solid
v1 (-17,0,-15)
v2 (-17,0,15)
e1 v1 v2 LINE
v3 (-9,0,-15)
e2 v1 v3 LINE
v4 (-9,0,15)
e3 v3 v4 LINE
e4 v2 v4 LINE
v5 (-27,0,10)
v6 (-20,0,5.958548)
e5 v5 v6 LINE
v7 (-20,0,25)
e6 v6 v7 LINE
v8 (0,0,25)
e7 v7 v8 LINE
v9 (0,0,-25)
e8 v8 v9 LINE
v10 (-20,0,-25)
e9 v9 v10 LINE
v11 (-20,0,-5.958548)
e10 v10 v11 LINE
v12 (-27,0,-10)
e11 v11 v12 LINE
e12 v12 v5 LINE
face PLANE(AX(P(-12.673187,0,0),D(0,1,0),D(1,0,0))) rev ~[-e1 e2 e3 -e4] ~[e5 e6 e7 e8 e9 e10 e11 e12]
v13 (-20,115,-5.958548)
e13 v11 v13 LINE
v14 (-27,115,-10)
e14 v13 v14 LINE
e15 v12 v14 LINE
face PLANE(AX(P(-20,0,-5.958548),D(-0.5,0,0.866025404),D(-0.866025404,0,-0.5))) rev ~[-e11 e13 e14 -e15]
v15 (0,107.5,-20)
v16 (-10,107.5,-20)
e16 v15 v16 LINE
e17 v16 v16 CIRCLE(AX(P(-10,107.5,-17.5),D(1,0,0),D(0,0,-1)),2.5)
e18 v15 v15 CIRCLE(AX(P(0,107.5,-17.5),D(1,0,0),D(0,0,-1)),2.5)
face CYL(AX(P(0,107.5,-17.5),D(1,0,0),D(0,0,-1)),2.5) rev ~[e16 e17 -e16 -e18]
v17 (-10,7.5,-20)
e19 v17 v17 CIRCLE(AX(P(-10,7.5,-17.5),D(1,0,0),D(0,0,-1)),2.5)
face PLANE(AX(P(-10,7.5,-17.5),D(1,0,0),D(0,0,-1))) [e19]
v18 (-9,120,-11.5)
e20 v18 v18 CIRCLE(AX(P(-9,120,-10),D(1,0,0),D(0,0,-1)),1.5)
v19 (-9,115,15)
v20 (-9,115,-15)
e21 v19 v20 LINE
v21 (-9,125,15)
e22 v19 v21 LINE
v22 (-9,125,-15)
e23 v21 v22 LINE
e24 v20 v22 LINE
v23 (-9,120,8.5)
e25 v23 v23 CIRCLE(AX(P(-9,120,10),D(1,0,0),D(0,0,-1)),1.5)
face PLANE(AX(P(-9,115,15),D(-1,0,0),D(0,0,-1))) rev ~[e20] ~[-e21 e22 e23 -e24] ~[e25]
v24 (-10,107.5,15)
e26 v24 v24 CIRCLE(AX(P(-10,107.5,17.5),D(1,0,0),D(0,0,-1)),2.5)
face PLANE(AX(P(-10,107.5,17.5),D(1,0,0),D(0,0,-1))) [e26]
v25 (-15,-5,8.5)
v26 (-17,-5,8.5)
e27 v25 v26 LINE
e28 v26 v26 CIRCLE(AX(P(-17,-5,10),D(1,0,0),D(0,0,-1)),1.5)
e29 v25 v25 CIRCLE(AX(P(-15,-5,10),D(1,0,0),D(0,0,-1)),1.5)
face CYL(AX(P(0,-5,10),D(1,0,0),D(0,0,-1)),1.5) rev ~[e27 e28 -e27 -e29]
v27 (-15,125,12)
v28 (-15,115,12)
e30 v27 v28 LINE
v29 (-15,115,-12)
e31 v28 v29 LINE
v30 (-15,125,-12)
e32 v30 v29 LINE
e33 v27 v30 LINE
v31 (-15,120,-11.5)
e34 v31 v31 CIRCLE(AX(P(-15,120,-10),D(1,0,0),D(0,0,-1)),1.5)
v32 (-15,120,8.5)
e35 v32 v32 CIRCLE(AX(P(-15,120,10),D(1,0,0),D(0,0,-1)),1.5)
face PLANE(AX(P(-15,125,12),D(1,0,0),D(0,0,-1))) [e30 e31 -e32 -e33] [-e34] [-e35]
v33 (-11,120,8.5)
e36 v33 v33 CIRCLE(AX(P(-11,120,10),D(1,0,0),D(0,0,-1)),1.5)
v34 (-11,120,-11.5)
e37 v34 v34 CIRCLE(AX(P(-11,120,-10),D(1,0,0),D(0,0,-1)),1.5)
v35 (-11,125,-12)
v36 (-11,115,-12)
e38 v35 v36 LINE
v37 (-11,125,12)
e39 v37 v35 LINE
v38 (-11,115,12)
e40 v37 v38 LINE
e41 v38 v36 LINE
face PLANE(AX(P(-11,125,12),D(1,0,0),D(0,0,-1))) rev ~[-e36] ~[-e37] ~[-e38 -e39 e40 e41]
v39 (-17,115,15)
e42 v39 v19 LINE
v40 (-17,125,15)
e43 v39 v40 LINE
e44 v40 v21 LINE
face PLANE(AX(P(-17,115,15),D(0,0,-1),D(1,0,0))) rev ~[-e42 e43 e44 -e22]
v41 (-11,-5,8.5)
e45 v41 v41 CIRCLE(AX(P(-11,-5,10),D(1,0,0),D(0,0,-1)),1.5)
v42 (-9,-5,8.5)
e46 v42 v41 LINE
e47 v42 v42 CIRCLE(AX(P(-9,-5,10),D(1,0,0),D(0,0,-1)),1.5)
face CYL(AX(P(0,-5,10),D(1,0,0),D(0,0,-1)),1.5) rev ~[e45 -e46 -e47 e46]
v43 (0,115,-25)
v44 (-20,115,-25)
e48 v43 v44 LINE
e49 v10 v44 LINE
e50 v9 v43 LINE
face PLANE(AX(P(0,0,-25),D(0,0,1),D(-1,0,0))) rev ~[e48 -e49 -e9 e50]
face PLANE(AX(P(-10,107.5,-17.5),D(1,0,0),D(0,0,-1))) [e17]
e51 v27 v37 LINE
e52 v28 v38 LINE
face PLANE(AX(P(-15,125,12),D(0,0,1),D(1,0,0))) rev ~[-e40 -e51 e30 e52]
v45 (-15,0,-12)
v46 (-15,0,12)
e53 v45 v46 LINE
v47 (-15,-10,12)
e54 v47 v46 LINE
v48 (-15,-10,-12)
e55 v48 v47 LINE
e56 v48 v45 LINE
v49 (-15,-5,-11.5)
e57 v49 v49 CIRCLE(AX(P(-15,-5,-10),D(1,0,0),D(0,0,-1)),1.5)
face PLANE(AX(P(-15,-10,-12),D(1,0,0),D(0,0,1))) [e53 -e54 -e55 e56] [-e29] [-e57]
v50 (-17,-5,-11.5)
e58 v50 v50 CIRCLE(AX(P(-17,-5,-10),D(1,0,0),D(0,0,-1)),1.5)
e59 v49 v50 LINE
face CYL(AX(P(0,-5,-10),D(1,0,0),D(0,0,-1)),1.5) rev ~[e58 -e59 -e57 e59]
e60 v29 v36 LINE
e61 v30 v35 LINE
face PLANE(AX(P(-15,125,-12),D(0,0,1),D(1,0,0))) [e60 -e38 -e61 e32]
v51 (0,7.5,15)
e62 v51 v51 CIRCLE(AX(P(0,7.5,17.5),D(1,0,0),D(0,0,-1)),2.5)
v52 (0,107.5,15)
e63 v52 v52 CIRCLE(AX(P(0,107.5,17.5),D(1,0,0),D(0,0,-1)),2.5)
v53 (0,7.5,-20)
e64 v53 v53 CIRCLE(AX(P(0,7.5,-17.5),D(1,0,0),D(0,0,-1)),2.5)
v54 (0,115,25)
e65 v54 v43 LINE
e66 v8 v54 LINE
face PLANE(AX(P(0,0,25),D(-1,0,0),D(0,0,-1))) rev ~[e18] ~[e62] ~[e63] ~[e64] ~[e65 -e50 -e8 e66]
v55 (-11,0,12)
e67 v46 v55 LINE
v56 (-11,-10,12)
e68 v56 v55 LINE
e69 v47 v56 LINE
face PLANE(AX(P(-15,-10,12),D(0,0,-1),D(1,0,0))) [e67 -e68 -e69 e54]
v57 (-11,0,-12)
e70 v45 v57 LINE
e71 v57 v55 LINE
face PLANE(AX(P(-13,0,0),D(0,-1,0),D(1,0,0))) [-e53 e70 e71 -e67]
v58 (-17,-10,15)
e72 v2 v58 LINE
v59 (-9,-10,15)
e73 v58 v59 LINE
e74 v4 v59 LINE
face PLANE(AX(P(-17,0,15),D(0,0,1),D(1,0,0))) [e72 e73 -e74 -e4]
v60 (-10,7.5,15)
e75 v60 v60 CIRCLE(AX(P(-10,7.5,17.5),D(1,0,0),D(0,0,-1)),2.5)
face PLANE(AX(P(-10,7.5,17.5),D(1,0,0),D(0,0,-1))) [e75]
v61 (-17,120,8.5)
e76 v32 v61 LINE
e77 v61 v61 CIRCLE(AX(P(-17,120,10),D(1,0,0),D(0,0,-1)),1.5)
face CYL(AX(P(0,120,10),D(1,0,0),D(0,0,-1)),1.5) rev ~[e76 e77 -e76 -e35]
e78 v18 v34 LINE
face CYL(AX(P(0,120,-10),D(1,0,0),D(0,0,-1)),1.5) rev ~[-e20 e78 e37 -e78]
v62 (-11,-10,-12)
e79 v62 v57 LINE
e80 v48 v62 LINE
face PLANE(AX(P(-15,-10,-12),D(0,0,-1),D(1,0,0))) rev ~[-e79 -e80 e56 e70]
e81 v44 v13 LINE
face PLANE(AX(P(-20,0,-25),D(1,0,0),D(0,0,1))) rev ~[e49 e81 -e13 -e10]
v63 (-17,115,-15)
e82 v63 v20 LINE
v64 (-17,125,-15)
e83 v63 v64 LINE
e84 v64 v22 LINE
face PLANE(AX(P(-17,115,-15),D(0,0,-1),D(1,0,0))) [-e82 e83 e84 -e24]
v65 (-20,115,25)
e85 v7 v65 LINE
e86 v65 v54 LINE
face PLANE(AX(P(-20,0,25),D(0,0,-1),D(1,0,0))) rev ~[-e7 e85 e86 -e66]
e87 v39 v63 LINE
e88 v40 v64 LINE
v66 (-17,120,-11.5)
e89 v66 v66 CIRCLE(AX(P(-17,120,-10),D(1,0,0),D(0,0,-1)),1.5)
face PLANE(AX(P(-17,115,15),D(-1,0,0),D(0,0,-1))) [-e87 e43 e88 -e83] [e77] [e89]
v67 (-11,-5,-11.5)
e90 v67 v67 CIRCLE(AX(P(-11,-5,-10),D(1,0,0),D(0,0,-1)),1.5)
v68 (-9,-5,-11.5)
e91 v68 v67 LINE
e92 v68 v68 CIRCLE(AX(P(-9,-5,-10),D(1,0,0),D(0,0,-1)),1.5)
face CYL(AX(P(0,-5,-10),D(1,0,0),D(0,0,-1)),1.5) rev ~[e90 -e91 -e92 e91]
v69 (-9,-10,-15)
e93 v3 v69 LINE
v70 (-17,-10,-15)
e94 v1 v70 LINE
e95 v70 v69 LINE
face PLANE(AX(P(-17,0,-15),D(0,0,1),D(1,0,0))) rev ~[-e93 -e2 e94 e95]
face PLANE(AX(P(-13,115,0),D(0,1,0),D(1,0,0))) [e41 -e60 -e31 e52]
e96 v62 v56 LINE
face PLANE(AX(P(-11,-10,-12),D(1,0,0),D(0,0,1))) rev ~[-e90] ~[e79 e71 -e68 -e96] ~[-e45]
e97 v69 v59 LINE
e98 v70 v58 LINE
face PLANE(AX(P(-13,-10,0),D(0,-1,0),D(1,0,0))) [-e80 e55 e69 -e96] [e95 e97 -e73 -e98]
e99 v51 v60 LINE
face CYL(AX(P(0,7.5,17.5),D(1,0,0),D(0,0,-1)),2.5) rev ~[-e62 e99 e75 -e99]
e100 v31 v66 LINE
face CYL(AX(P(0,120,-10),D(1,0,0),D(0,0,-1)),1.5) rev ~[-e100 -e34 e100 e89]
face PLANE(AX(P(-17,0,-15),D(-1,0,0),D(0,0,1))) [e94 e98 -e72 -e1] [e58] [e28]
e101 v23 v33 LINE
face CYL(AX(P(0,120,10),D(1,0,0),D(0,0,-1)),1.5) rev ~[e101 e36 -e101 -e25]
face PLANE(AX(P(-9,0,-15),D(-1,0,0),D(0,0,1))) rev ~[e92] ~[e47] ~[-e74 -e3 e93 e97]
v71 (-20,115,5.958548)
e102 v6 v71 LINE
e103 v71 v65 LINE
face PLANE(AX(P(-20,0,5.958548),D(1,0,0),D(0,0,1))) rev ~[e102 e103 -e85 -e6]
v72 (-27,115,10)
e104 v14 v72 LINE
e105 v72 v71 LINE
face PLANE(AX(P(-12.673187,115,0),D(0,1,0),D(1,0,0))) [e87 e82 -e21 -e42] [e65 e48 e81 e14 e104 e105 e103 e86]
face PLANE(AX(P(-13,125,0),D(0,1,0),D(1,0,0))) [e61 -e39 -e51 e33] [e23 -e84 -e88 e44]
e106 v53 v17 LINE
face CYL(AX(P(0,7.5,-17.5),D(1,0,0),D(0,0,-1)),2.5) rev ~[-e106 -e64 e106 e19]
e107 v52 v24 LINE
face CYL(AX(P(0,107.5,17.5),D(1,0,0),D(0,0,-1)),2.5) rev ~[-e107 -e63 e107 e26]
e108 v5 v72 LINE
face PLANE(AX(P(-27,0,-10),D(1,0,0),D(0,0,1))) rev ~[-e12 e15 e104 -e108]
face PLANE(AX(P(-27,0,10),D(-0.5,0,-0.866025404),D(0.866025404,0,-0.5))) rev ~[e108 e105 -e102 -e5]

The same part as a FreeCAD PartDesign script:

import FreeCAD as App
import Part
import Sketcher
Q = App.Units.Quantity


def add_polygon(sketch, points):
    """Adds a closed chain of lines whose ends are joined by coincident constraints."""
    first, n = sketch.GeometryCount, len(points)
    for a, b in zip(points, points[1:] + points[:1]):
        sketch.addGeometry(Part.LineSegment(App.Vector(*a, 0), App.Vector(*b, 0)), False)
    for i in range(n):
        sketch.addConstraint(Sketcher.Constraint("Coincident", first + i, 2, first + (i + 1) % n, 1))

doc = App.newDocument("Part")
body = doc.addObject("PartDesign::Body", "Body")

sketch1 = body.newObject("Sketcher::SketchObject", "Sketch")
sketch1.AttachmentSupport = (doc.getObject("XZ_Plane"), [""])
sketch1.MapMode = "FlatFace"
add_polygon(sketch1, [(-27, -10), (-27, 10), (-20, 5.958548), (-20, 25), (0, 25), (0, -25), (-20, -25), (-20, -5.958548)])
sketch1.addConstraint([
    Sketcher.Constraint("Vertical", 0),
    Sketcher.Constraint("Vertical", 2),
    Sketcher.Constraint("Horizontal", 3),
    Sketcher.Constraint("Vertical", 4),
    Sketcher.Constraint("Horizontal", 5),
    Sketcher.Constraint("Vertical", 6),
    Sketcher.Constraint("Symmetric", 3, 2, 4, 2, -1, 1),
    Sketcher.Constraint("Symmetric", 1, 2, 6, 2, -1),
    Sketcher.Constraint("Equal", 5, 0),
    Sketcher.Constraint("Equal", 1, 7),
    Sketcher.Constraint("DistanceX", 3, 1, 3, 2, Q("20 mm")),
    Sketcher.Constraint("DistanceY", 4, 2, 4, 1, Q("50 mm")),
    Sketcher.Constraint("Angle", 1, Q("-30 deg")),
    Sketcher.Constraint("DistanceX", 0, 2, -1, 1, Q("27 mm")),
])
pad1 = body.newObject("PartDesign::Pad", "Pad")
pad1.Profile = sketch1
pad1.Length = 115
pad1.Reversed = True

sketch2 = body.newObject("Sketcher::SketchObject", "Sketch001")
sketch2.AttachmentSupport = (doc.getObject("YZ_Plane"), [""])
sketch2.MapMode = "FlatFace"
sketch2.addGeometry([
    Part.Circle(App.Vector(107.5, 17.5, 0), App.Vector(0, 0, 1), 2.5),
    Part.Circle(App.Vector(7.5, 17.5, 0), App.Vector(0, 0, 1), 2.5),
    Part.Circle(App.Vector(7.5, -17.5, 0), App.Vector(0, 0, 1), 2.5),
    Part.Circle(App.Vector(107.5, -17.5, 0), App.Vector(0, 0, 1), 2.5),
], False)
sketch2.addConstraint([
    Sketcher.Constraint("Equal", 0, 1),
    Sketcher.Constraint("Equal", 1, 2),
    Sketcher.Constraint("Equal", 2, 3),
    Sketcher.Constraint("Symmetric", 1, 3, 2, 3, -1),
    Sketcher.Constraint("Symmetric", 0, 3, 3, 3, -1),
    Sketcher.Constraint("Horizontal", 0, 3, 1, 3),
    Sketcher.Constraint("Diameter", 0, Q("5 mm")),
    Sketcher.Constraint("DistanceX", 1, 3, 0, 3, Q("100 mm")),
    Sketcher.Constraint("DistanceY", 2, 3, 1, 3, Q("35 mm")),
    Sketcher.Constraint("DistanceX", -1, 1, 0, 3, Q("107.5 mm")),
])
pocket1 = body.newObject("PartDesign::Pocket", "Pocket")
pocket1.Profile = sketch2
pocket1.Length = 10

sketch3 = body.newObject("Sketcher::SketchObject", "Sketch002")
sketch3.AttachmentSupport = (doc.getObject("XZ_Plane"), [""])
sketch3.MapMode = "FlatFace"
sketch3.AttachmentOffset = App.Placement(App.Vector(0, 0, -115), App.Rotation())
add_polygon(sketch3, [(-17, -15), (-17, 15), (-9, 15), (-9, -15)])
sketch3.addConstraint([
    Sketcher.Constraint("Vertical", 0),
    Sketcher.Constraint("Horizontal", 1),
    Sketcher.Constraint("Vertical", 2),
    Sketcher.Constraint("Horizontal", 3),
    Sketcher.Constraint("DistanceX", 1, 1, 1, 2, Q("8 mm")),
    Sketcher.Constraint("DistanceY", 0, 1, 0, 2, Q("30 mm")),
    Sketcher.Constraint("DistanceX", 0, 2, -1, 1, Q("17 mm")),
    Sketcher.Constraint("DistanceY", -1, 1, 0, 2, Q("15 mm")),
])
pad2 = body.newObject("PartDesign::Pad", "Pad001")
pad2.Profile = sketch3
pad2.Length = 10
pad2.Reversed = True

sketch4 = body.newObject("Sketcher::SketchObject", "Sketch003")
sketch4.AttachmentSupport = (doc.getObject("XZ_Plane"), [""])
sketch4.MapMode = "FlatFace"
add_polygon(sketch4, [(-17, 15), (-17, -15), (-9, -15), (-9, 15)])
sketch4.addConstraint([
    Sketcher.Constraint("Vertical", 0),
    Sketcher.Constraint("Horizontal", 1),
    Sketcher.Constraint("Vertical", 2),
    Sketcher.Constraint("Horizontal", 3),
    Sketcher.Constraint("DistanceX", 1, 1, 1, 2, Q("8 mm")),
    Sketcher.Constraint("DistanceY", 0, 2, 0, 1, Q("30 mm")),
    Sketcher.Constraint("DistanceX", 0, 2, -1, 1, Q("17 mm")),
    Sketcher.Constraint("DistanceY", 0, 2, -1, 1, Q("15 mm")),
])
pad3 = body.newObject("PartDesign::Pad", "Pad002")
pad3.Profile = sketch4
pad3.Length = 10

sketch5 = body.newObject("Sketcher::SketchObject", "Sketch004")
sketch5.AttachmentSupport = (doc.getObject("XZ_Plane"), [""])
sketch5.MapMode = "FlatFace"
sketch5.AttachmentOffset = App.Placement(App.Vector(0, 0, 10), App.Rotation())
add_polygon(sketch5, [(-15, 12), (-15, -12), (-11, -12), (-11, 12)])
sketch5.addConstraint([
    Sketcher.Constraint("Vertical", 0),
    Sketcher.Constraint("Horizontal", 1),
    Sketcher.Constraint("Vertical", 2),
    Sketcher.Constraint("Horizontal", 3),
    Sketcher.Constraint("DistanceX", 1, 1, 1, 2, Q("4 mm")),
    Sketcher.Constraint("DistanceY", 0, 2, 0, 1, Q("24 mm")),
    Sketcher.Constraint("DistanceX", 0, 2, -1, 1, Q("15 mm")),
    Sketcher.Constraint("DistanceY", 0, 2, -1, 1, Q("12 mm")),
])
pocket2 = body.newObject("PartDesign::Pocket", "Pocket001")
pocket2.Profile = sketch5
pocket2.Length = 10

sketch6 = body.newObject("Sketcher::SketchObject", "Sketch005")
sketch6.AttachmentSupport = (doc.getObject("XZ_Plane"), [""])
sketch6.MapMode = "FlatFace"
sketch6.AttachmentOffset = App.Placement(App.Vector(0, 0, -125), App.Rotation())
add_polygon(sketch6, [(-15, -12), (-15, 12), (-11, 12), (-11, -12)])
sketch6.addConstraint([
    Sketcher.Constraint("Vertical", 0),
    Sketcher.Constraint("Horizontal", 1),
    Sketcher.Constraint("Vertical", 2),
    Sketcher.Constraint("Horizontal", 3),
    Sketcher.Constraint("DistanceX", 1, 1, 1, 2, Q("4 mm")),
    Sketcher.Constraint("DistanceY", 0, 1, 0, 2, Q("24 mm")),
    Sketcher.Constraint("DistanceX", 0, 2, -1, 1, Q("15 mm")),
    Sketcher.Constraint("DistanceY", -1, 1, 0, 2, Q("12 mm")),
])
pocket3 = body.newObject("PartDesign::Pocket", "Pocket002")
pocket3.Profile = sketch6
pocket3.Length = 10
pocket3.Reversed = True

sketch7 = body.newObject("Sketcher::SketchObject", "Sketch006")
sketch7.AttachmentSupport = (doc.getObject("YZ_Plane"), [""])
sketch7.MapMode = "FlatFace"
sketch7.addGeometry([
    Part.Circle(App.Vector(120, 10, 0), App.Vector(0, 0, 1), 1.5),
    Part.Circle(App.Vector(-5, 10, 0), App.Vector(0, 0, 1), 1.5),
    Part.Circle(App.Vector(-5, -10, 0), App.Vector(0, 0, 1), 1.5),
    Part.Circle(App.Vector(120, -10, 0), App.Vector(0, 0, 1), 1.5),
], False)
sketch7.addConstraint([
    Sketcher.Constraint("Equal", 0, 1),
    Sketcher.Constraint("Equal", 1, 2),
    Sketcher.Constraint("Equal", 2, 3),
    Sketcher.Constraint("Symmetric", 1, 3, 2, 3, -1),
    Sketcher.Constraint("Symmetric", 0, 3, 3, 3, -1),
    Sketcher.Constraint("Horizontal", 0, 3, 1, 3),
    Sketcher.Constraint("Diameter", 0, Q("3 mm")),
    Sketcher.Constraint("DistanceX", -1, 1, 0, 3, Q("120 mm")),
    Sketcher.Constraint("DistanceY", -1, 1, 0, 3, Q("10 mm")),
    Sketcher.Constraint("DistanceX", 1, 3, -1, 1, Q("5 mm")),
])
pocket4 = body.newObject("PartDesign::Pocket", "Pocket003")
pocket4.Profile = sketch7
pocket4.Length = 32

doc.recompute()
